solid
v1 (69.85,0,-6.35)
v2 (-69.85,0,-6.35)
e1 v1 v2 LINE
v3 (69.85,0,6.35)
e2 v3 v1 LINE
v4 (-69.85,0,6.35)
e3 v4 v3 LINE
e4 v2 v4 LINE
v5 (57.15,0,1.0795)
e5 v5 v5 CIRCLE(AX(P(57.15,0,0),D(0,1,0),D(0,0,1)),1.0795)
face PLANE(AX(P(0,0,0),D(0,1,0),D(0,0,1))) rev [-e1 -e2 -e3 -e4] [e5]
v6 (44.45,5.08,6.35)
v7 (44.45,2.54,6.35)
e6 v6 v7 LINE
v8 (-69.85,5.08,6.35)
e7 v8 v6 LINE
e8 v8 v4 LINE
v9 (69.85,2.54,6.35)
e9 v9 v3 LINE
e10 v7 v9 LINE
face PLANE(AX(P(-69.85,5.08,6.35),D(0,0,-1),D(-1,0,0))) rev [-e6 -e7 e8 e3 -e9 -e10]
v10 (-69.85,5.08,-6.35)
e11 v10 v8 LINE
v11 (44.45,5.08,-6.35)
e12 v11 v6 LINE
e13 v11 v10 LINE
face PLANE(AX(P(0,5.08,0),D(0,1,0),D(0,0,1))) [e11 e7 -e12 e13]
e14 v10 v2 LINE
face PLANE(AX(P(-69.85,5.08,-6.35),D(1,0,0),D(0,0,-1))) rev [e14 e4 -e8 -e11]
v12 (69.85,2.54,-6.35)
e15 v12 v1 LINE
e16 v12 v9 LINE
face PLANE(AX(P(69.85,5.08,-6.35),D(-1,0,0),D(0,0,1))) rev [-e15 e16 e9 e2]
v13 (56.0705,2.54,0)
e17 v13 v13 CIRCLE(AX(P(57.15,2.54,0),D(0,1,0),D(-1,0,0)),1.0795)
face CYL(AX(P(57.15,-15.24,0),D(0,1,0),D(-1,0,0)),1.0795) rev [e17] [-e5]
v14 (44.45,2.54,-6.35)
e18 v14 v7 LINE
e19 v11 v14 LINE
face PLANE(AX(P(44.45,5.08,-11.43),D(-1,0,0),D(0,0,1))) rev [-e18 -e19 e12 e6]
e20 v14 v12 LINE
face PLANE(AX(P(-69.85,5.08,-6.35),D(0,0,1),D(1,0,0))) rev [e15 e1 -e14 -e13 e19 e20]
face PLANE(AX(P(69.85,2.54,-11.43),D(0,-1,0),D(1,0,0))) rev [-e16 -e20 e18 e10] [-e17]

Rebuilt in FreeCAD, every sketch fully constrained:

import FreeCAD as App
import Part
import Sketcher

V = App.Vector
Q = App.Units.Quantity

doc = App.newDocument("Part")
params = doc.addObject("Spreadsheet::Sheet", "Params")
for row, (alias, value) in enumerate([
    ("sketch1_width", "5.5 in"),
    ("sketch1_height", "0.5 in"),
    ("pad1_length", "0.2 in"),
    ("sketch2_width", "1 in"),
    ("sketch2_height", "0.1 in"),
    ("pocket1_length", "0.7 in"),
    ("sketch3_diameter", "0.085 in"),
    ("pocket2_length", "0.7 in"),
], start=1):
    params.set(f"A{row}", alias)
    params.set(f"B{row}", "=" + value)
    params.setAlias(f"B{row}", alias)

body = doc.addObject("PartDesign::Body", "Body")

# Sketch on XZ plane
sketch1 = body.newObject("Sketcher::SketchObject", "Sketch")
sketch1.AttachmentSupport = (doc.getObject("XZ_Plane"), [""])
sketch1.MapMode = "FlatFace"
sketch1.addGeometry(Part.LineSegment(V(-70, -6, 0), V(-70, 6, 0)), False)
sketch1.addGeometry(Part.LineSegment(V(-70, 6, 0), V(70, 6, 0)), False)
sketch1.addGeometry(Part.LineSegment(V(70, 6, 0), V(70, -6, 0)), False)
sketch1.addGeometry(Part.LineSegment(V(70, -6, 0), V(-70, -6, 0)), False)
sketch1.addConstraint(Sketcher.Constraint("Coincident", 0, 2, 1, 1))
sketch1.addConstraint(Sketcher.Constraint("Coincident", 1, 2, 2, 1))
sketch1.addConstraint(Sketcher.Constraint("Coincident", 2, 2, 3, 1))
sketch1.addConstraint(Sketcher.Constraint("Coincident", 3, 2, 0, 1))
sketch1.addConstraint(Sketcher.Constraint("Vertical", 0))
sketch1.addConstraint(Sketcher.Constraint("Horizontal", 1))
sketch1.addConstraint(Sketcher.Constraint("Vertical", 2))
sketch1.addConstraint(Sketcher.Constraint("Horizontal", 3))
sketch1.addConstraint(Sketcher.Constraint("Symmetric", 0, 2, 2, 2, -1, 1))
sketch1.addConstraint(Sketcher.Constraint("DistanceX", 1, 1, 1, 2, Q("5.5 in")))
sketch1.addConstraint(Sketcher.Constraint("DistanceY", 0, 1, 0, 2, Q("0.5 in")))
sketch1.setExpression("Constraints[9]", "Params.sketch1_width")
sketch1.setExpression("Constraints[10]", "Params.sketch1_height")
pad1 = body.newObject("PartDesign::Pad", "Pad")
pad1.Profile = sketch1
pad1.setExpression("Length", "Params.pad1_length")
pad1.Reversed = True

# Sketch on XY plane
sketch2 = body.newObject("Sketcher::SketchObject", "Sketch001")
sketch2.AttachmentSupport = (doc.getObject("XY_Plane"), [""])
sketch2.MapMode = "FlatFace"
sketch2.AttachmentOffset = App.Placement(V(0, 0, 0.25 * 25.4), App.Rotation())
sketch2.addGeometry(Part.LineSegment(V(44.5, 5.1, 0), V(44.5, 2.5, 0)), False)
sketch2.addGeometry(Part.LineSegment(V(44.5, 2.5, 0), V(69.8, 2.5, 0)), False)
sketch2.addGeometry(Part.LineSegment(V(69.8, 2.5, 0), V(69.8, 5.1, 0)), False)
sketch2.addGeometry(Part.LineSegment(V(69.8, 5.1, 0), V(44.5, 5.1, 0)), False)
sketch2.addConstraint(Sketcher.Constraint("Coincident", 0, 2, 1, 1))
sketch2.addConstraint(Sketcher.Constraint("Coincident", 1, 2, 2, 1))
sketch2.addConstraint(Sketcher.Constraint("Coincident", 2, 2, 3, 1))
sketch2.addConstraint(Sketcher.Constraint("Coincident", 3, 2, 0, 1))
sketch2.addConstraint(Sketcher.Constraint("Vertical", 0))
sketch2.addConstraint(Sketcher.Constraint("Horizontal", 1))
sketch2.addConstraint(Sketcher.Constraint("Vertical", 2))
sketch2.addConstraint(Sketcher.Constraint("Horizontal", 3))
sketch2.addConstraint(Sketcher.Constraint("DistanceX", 1, 1, 1, 2, Q("1 in")))
sketch2.addConstraint(Sketcher.Constraint("DistanceY", 0, 2, 0, 1, Q("0.1 in")))
sketch2.addConstraint(Sketcher.Constraint("DistanceY", -1, 1, 0, 2, Q("0.1 in")))
sketch2.addConstraint(Sketcher.Constraint("DistanceX", -1, 1, 0, 2, Q("1.75 in")))
sketch2.setExpression("Constraints[8]", "Params.sketch2_width")
sketch2.setExpression("Constraints[9]", "Params.sketch2_height")
pocket1 = body.newObject("PartDesign::Pocket", "Pocket")
pocket1.Profile = sketch2
pocket1.setExpression("Length", "Params.pocket1_length")

# Sketch on XZ plane
sketch3 = body.newObject("Sketcher::SketchObject", "Sketch002")
sketch3.AttachmentSupport = (doc.getObject("XZ_Plane"), [""])
sketch3.MapMode = "FlatFace"
sketch3.AttachmentOffset = App.Placement(V(0, 0, -0.1 * 25.4), App.Rotation())
sketch3.addGeometry(Part.Circle(V(57.1, 0, 0), V(0, 0, 1), 1.1), False)
sketch3.addConstraint(Sketcher.Constraint("PointOnObject", 0, 3, -1))
sketch3.addConstraint(Sketcher.Constraint("Diameter", 0, Q("0.085 in")))
sketch3.addConstraint(Sketcher.Constraint("DistanceX", -1, 1, 0, 3, Q("2.25 in")))
sketch3.setExpression("Constraints[1]", "Params.sketch3_diameter")
pocket2 = body.newObject("PartDesign::Pocket", "Pocket001")
pocket2.Profile = sketch3
pocket2.setExpression("Length", "Params.pocket2_length")
pocket2.Reversed = True

doc.recompute()
